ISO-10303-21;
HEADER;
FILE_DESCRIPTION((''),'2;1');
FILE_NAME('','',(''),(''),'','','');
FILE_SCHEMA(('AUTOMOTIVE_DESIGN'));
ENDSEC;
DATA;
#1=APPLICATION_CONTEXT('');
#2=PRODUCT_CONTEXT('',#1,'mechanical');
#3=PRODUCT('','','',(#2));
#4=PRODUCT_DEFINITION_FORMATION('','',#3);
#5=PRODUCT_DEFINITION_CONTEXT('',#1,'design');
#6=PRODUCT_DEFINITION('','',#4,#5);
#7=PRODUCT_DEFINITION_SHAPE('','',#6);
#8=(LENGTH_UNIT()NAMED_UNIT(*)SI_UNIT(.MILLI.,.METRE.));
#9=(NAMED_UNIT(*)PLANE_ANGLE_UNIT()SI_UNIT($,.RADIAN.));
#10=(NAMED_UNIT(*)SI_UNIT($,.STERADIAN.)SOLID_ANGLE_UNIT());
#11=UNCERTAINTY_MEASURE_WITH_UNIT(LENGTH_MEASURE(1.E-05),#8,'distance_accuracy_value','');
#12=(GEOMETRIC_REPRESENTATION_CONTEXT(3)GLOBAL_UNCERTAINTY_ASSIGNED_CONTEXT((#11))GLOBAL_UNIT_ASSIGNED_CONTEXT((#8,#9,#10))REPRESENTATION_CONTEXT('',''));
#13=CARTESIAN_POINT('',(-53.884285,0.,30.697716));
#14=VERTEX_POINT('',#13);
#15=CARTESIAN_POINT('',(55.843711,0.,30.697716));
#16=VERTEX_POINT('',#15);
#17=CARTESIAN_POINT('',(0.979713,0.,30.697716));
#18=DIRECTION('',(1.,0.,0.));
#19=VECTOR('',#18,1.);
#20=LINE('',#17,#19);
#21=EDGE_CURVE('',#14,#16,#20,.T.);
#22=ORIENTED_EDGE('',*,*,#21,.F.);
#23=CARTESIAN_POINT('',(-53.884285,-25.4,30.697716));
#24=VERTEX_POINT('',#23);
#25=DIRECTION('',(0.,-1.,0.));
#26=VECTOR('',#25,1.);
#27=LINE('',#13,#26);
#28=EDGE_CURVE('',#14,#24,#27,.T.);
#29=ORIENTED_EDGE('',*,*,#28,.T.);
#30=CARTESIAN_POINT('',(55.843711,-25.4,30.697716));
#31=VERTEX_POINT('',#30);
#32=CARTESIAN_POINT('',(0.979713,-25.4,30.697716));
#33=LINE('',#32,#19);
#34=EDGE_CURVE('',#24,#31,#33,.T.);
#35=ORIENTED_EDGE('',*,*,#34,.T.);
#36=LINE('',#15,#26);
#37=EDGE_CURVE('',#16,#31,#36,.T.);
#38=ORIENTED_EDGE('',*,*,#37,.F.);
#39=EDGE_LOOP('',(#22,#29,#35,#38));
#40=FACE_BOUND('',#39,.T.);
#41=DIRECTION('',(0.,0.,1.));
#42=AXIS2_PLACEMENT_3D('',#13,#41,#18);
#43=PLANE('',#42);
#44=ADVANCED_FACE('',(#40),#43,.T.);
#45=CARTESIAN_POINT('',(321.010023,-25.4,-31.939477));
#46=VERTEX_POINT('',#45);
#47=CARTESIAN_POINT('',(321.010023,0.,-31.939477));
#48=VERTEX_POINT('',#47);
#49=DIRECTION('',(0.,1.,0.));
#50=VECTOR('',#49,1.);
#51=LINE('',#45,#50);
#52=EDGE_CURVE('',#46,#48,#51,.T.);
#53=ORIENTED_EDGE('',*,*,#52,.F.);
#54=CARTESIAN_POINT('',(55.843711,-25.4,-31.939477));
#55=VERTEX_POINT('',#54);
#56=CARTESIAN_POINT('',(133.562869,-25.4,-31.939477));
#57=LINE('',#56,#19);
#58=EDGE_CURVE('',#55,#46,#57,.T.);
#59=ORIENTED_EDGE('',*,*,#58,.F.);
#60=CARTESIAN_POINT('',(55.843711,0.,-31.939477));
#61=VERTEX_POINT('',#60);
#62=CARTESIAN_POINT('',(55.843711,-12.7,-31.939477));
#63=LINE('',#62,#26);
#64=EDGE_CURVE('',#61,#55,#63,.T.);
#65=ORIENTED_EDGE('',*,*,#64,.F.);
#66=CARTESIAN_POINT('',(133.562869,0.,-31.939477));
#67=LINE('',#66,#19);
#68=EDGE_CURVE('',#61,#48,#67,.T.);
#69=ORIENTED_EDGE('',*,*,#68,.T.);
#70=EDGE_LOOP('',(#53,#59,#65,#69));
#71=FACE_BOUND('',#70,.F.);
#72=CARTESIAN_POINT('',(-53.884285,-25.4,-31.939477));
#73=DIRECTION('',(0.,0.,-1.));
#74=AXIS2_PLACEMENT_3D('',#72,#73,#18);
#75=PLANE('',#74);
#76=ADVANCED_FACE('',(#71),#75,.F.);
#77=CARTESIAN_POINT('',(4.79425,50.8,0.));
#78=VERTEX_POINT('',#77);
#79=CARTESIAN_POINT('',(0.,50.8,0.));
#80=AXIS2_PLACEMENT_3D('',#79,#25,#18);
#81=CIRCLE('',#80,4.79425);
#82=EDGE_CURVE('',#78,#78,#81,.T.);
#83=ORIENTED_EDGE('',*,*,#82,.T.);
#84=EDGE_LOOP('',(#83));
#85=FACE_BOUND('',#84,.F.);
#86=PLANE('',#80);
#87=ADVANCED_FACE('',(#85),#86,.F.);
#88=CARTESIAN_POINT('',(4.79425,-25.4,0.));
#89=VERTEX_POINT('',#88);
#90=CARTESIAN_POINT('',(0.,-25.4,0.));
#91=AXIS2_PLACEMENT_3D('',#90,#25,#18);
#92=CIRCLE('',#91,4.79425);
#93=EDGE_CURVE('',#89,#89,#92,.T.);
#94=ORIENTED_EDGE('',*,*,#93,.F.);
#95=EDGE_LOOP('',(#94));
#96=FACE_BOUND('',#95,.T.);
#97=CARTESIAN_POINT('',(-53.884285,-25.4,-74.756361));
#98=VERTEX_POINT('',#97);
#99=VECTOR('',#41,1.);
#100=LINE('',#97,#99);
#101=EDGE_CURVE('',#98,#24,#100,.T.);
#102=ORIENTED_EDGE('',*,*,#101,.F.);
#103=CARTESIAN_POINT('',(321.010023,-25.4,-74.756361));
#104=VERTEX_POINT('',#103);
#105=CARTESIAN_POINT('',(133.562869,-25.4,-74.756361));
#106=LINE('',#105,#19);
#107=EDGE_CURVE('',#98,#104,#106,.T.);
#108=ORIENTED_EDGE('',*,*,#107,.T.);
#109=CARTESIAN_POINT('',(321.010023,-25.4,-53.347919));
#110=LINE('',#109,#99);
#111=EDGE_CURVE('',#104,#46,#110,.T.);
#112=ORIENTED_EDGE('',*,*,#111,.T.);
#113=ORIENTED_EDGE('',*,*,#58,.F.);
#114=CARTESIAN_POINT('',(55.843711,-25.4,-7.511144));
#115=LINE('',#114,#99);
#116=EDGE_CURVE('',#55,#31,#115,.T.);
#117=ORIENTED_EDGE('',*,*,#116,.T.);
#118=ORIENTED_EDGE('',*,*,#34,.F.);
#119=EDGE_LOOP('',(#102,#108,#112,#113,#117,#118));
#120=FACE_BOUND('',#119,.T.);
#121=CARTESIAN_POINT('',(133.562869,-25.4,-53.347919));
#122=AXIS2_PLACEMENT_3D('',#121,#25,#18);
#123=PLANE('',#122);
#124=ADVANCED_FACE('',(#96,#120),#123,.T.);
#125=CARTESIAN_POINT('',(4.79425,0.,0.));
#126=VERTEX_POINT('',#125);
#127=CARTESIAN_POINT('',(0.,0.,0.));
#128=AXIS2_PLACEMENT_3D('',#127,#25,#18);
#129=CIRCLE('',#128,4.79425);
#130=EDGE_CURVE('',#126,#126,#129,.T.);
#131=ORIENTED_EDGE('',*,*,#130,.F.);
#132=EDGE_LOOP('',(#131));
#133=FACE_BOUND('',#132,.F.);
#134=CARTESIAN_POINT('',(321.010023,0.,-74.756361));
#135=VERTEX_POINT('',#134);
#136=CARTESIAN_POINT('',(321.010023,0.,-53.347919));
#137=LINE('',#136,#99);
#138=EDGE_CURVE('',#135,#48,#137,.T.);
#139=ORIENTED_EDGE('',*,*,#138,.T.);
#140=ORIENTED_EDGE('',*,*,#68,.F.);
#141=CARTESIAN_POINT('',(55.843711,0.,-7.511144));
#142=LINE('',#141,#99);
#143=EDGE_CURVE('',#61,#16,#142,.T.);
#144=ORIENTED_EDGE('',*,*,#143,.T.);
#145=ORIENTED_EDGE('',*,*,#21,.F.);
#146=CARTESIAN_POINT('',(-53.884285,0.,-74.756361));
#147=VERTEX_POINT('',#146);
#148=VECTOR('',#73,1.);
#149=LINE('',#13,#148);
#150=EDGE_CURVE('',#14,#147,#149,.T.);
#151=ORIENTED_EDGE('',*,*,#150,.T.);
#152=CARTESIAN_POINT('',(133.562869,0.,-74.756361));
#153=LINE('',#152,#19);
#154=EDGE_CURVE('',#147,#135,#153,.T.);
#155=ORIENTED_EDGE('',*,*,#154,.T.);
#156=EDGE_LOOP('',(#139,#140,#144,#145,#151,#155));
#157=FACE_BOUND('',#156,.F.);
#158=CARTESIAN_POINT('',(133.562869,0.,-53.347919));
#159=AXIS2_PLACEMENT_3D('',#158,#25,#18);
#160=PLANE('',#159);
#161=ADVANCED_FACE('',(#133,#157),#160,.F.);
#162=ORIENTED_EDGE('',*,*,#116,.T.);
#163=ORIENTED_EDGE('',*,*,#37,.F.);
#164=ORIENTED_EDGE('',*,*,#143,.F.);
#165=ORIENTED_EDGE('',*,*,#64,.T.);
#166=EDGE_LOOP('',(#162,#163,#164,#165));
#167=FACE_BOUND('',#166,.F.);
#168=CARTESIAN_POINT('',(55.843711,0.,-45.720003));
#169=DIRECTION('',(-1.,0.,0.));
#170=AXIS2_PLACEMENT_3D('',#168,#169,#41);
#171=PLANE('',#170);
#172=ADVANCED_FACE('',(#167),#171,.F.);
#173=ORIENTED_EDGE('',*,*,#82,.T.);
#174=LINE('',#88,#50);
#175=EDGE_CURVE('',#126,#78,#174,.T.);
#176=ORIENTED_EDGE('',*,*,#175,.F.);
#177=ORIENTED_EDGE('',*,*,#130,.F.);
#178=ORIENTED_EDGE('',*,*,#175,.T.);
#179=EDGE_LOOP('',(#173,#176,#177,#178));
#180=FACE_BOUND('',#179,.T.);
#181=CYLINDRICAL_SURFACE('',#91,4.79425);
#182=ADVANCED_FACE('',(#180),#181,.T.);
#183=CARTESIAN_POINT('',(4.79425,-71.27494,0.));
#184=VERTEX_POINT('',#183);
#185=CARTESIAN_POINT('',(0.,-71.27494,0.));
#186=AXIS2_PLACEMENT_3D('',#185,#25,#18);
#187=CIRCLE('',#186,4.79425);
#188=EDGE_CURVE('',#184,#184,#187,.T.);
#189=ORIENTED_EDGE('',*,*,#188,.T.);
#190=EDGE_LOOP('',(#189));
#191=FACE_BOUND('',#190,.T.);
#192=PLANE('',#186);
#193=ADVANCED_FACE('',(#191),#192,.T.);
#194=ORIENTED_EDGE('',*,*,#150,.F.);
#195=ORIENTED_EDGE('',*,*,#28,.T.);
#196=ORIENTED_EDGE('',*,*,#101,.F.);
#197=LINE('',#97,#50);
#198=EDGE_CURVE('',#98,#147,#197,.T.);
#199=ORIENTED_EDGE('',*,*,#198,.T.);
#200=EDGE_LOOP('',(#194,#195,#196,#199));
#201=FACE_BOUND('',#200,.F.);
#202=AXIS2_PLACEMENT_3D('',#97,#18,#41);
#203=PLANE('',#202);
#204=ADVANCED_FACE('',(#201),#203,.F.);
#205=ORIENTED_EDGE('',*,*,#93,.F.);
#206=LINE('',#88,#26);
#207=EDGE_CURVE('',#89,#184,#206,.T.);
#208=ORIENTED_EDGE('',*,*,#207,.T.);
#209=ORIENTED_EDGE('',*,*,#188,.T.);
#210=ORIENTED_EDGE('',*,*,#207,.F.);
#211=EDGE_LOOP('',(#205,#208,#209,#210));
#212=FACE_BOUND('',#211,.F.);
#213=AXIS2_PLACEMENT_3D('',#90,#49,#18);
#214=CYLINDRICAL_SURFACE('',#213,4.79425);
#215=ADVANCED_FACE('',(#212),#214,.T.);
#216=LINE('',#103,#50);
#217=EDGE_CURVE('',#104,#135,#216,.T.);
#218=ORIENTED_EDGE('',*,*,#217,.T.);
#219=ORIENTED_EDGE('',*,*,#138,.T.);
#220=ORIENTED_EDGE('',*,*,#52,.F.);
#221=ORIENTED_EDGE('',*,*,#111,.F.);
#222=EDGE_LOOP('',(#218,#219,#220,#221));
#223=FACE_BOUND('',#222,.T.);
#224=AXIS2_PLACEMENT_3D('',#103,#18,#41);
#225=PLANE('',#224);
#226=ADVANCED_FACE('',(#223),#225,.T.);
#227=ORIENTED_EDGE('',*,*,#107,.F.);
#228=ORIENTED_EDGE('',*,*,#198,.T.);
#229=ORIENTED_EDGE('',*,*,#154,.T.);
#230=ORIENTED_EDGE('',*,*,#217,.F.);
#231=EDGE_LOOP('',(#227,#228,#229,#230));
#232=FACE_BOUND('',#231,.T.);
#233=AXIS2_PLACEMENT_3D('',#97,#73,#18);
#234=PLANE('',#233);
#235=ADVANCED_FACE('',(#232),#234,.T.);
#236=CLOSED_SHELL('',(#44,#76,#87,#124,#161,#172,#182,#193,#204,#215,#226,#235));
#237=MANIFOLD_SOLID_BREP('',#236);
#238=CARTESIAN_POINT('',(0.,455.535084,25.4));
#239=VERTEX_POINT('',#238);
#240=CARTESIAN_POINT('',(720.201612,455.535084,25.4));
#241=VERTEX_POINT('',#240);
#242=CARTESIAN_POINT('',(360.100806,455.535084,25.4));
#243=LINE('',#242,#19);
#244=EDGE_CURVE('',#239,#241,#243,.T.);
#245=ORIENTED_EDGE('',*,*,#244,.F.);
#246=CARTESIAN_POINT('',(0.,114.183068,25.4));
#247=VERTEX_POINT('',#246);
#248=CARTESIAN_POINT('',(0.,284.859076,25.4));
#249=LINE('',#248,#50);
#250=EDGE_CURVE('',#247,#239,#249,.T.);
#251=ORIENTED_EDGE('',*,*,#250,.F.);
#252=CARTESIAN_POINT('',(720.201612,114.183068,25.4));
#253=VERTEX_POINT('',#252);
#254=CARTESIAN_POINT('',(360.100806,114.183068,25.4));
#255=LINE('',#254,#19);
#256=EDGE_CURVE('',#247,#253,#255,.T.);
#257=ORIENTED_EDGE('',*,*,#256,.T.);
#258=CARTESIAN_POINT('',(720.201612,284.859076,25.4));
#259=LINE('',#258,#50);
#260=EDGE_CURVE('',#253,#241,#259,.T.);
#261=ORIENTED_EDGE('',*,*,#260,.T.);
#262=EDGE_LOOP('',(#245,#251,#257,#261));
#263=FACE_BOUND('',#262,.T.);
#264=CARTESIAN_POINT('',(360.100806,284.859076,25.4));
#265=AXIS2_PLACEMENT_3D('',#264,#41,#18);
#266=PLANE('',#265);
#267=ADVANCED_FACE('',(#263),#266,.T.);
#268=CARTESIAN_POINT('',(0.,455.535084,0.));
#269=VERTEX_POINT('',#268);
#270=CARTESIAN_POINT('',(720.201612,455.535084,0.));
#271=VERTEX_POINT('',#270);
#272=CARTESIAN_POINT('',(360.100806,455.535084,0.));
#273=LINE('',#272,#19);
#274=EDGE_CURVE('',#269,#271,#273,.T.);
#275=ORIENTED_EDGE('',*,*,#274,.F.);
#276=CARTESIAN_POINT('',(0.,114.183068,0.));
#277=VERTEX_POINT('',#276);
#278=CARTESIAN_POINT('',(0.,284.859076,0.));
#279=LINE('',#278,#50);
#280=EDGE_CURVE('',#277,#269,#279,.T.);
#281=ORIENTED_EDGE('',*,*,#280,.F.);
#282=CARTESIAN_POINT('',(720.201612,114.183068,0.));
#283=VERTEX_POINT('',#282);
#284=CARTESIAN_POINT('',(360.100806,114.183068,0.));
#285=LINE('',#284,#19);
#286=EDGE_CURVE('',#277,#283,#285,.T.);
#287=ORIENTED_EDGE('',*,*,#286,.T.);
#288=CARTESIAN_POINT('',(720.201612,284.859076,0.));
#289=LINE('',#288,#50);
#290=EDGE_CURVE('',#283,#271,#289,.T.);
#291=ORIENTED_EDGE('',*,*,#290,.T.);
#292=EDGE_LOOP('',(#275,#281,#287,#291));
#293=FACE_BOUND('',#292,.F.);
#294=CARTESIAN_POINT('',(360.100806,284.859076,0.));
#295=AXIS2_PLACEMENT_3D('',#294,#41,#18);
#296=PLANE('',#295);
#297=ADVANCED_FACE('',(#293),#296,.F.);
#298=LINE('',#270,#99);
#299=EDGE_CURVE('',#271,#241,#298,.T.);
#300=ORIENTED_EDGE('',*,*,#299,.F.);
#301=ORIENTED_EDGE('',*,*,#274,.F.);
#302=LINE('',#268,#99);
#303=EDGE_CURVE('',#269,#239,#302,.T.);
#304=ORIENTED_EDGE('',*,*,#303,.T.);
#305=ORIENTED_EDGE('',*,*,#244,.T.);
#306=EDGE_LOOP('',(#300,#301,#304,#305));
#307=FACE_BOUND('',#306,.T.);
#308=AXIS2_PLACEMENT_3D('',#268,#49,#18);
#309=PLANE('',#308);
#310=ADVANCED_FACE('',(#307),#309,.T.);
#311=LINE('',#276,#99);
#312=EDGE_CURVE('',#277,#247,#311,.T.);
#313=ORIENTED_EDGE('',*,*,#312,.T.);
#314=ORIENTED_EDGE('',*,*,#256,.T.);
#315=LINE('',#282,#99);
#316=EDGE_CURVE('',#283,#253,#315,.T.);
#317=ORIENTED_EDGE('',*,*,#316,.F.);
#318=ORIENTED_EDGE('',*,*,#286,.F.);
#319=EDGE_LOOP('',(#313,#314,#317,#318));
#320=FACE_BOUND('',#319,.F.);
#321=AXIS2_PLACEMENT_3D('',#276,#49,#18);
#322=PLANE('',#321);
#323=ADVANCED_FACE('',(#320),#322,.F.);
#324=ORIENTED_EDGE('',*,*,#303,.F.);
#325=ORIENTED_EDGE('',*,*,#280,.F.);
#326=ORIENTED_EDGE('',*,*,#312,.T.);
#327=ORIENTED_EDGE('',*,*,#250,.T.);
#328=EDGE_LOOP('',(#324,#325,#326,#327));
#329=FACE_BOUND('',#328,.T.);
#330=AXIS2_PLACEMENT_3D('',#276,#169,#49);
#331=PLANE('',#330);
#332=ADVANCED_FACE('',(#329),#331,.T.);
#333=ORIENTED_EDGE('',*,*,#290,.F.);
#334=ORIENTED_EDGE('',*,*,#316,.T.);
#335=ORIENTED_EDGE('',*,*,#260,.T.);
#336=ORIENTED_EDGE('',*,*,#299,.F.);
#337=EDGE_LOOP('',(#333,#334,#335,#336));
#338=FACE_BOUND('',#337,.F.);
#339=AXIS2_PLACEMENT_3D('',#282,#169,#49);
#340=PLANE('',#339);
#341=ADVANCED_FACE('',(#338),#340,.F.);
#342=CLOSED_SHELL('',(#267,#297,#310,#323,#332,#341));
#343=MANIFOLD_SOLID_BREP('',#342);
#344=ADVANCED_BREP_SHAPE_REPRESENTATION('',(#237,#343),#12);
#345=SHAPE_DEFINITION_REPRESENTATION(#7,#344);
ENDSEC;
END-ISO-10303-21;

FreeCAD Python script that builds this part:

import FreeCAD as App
import Part
import Sketcher
from FreeCAD import Vector
Q = App.Units.Quantity

doc = App.newDocument("Part")
params = doc.addObject("Spreadsheet::Sheet", "Params")
for row, (alias, value) in enumerate([
    ("sketch1_width", "4.3199999 in"),
    ("pad1_length", "1 in"),
    ("pad2_length", "1.8061 in"),
    ("pad2_length2", "3 in"),
    ("pad3_length", "1 in"),
    ("pad4_length", "1 in"),
], start=1):
    params.set(f"A{row}", alias)
    params.set(f"B{row}", "=" + value)
    params.setAlias(f"B{row}", alias)

body = doc.addObject("PartDesign::Body", "Body")

sketch1 = body.newObject("Sketcher::SketchObject", "Sketch")
sketch1.AttachmentSupport = (doc.getObject("XZ_Plane"), [""])
sketch1.MapMode = "FlatFace"
sketch1.addGeometry([
    Part.LineSegment(Vector(-54, 31, 0), Vector(-54, -46, 0)),
    Part.LineSegment(Vector(-54, -46, 0), Vector(56, -46, 0)),
    Part.LineSegment(Vector(56, -46, 0), Vector(56, 31, 0)),
    Part.LineSegment(Vector(56, 31, 0), Vector(-54, 31, 0)),
], False)
sketch1.addConstraint([
    Sketcher.Constraint("Coincident", 0, 2, 1, 1),
    Sketcher.Constraint("Coincident", 1, 2, 2, 1),
    Sketcher.Constraint("Coincident", 2, 2, 3, 1),
    Sketcher.Constraint("Coincident", 3, 2, 0, 1),
    Sketcher.Constraint("Vertical", 0),
    Sketcher.Constraint("Horizontal", 1),
    Sketcher.Constraint("Vertical", 2),
    Sketcher.Constraint("Horizontal", 3),
    Sketcher.Constraint("DistanceX", 1, 1, 1, 2, Q("4.3199999 in")),
    Sketcher.Constraint("DistanceY", 0, 2, -1, 1, Q("1.8000001 in")),
    Sketcher.Constraint("DistanceY", 0, 2, 0, 1, 76.417719),
    Sketcher.Constraint("DistanceX", -1, 1, 1, 2, 55.843711),
])
sketch1.setExpression("Constraints[8]", "Params.sketch1_width")
pad1 = body.newObject("PartDesign::Pad", "Pad")
pad1.Profile = sketch1
pad1.setExpression("Length", "Params.pad1_length")

sketch2 = body.newObject("Sketcher::SketchObject", "Sketch001")
sketch2.AttachmentSupport = (doc.getObject("XZ_Plane"), [""])
sketch2.MapMode = "FlatFace"
sketch2.AttachmentOffset = App.Placement(Vector(0, 0, 1 * 25.4), App.Rotation())
sketch2.addGeometry(Part.Circle(Vector(0, 0, 0), Vector(0, 0, 1), 4.8), False)
sketch2.addConstraint([
    Sketcher.Constraint("Coincident", 0, 3, -1, 1),
    Sketcher.Constraint("Diameter", 0, Q("0.3775 in")),
])
pad2 = body.newObject("PartDesign::Pad", "Pad001")
pad2.Profile = sketch2
pad2.Type = "TwoLengths"
pad2.setExpression("Length", "Params.pad2_length")
pad2.setExpression("Length2", "Params.pad2_length2")

sketch3 = body.newObject("Sketcher::SketchObject", "Sketch002")
sketch3.AttachmentSupport = (doc.getObject("XZ_Plane"), [""])
sketch3.MapMode = "FlatFace"
sketch3.AttachmentOffset = App.Placement(Vector(0, 0, 1 * 25.4), App.Rotation())
sketch3.addGeometry([
    Part.LineSegment(Vector(-54, -32, 0), Vector(-54, -75, 0)),
    Part.LineSegment(Vector(-54, -75, 0), Vector(321, -75, 0)),
    Part.LineSegment(Vector(321, -75, 0), Vector(321, -32, 0)),
    Part.LineSegment(Vector(321, -32, 0), Vector(-54, -32, 0)),
], False)
sketch3.addConstraint([
    Sketcher.Constraint("Coincident", 0, 2, 1, 1),
    Sketcher.Constraint("Coincident", 1, 2, 2, 1),
    Sketcher.Constraint("Coincident", 2, 2, 3, 1),
    Sketcher.Constraint("Coincident", 3, 2, 0, 1),
    Sketcher.Constraint("Vertical", 0),
    Sketcher.Constraint("Horizontal", 1),
    Sketcher.Constraint("Vertical", 2),
    Sketcher.Constraint("Horizontal", 3),
    Sketcher.Constraint("DistanceX", 1, 1, 1, 2, 374.894309),
    Sketcher.Constraint("DistanceY", 0, 2, 0, 1, 42.816885),
    Sketcher.Constraint("DistanceY", 0, 2, -1, 1, 74.756361),
    Sketcher.Constraint("DistanceX", 0, 2, -1, 1, 53.884285),
])
pad3 = body.newObject("PartDesign::Pad", "Pad002")
pad3.Profile = sketch3
pad3.setExpression("Length", "Params.pad3_length")
pad3.Reversed = True
body2 = doc.addObject("PartDesign::Body", "Body001")

sketch4 = body2.newObject("Sketcher::SketchObject", "Sketch003")
sketch4.AttachmentSupport = (doc.getObject("XY_Plane001"), [""])
sketch4.MapMode = "FlatFace"
sketch4.addGeometry([
    Part.LineSegment(Vector(0, 456, 0), Vector(0, 114, 0)),
    Part.LineSegment(Vector(0, 114, 0), Vector(720, 114, 0)),
    Part.LineSegment(Vector(720, 114, 0), Vector(720, 456, 0)),
    Part.LineSegment(Vector(720, 456, 0), Vector(0, 456, 0)),
], False)
sketch4.addConstraint([
    Sketcher.Constraint("Coincident", 0, 2, 1, 1),
    Sketcher.Constraint("Coincident", 1, 2, 2, 1),
    Sketcher.Constraint("Coincident", 2, 2, 3, 1),
    Sketcher.Constraint("Coincident", 3, 2, 0, 1),
    Sketcher.Constraint("Vertical", 0),
    Sketcher.Constraint("Horizontal", 1),
    Sketcher.Constraint("Vertical", 2),
    Sketcher.Constraint("Horizontal", 3),
    Sketcher.Constraint("PointOnObject", 0, 2, -2),
    Sketcher.Constraint("DistanceX", 1, 1, 1, 2, 720.201612),
    Sketcher.Constraint("DistanceY", 0, 2, 0, 1, 341.352016),
    Sketcher.Constraint("DistanceY", -1, 1, 0, 2, 114.183068),
])
pad4 = body2.newObject("PartDesign::Pad", "Pad003")
pad4.Profile = sketch4
pad4.setExpression("Length", "Params.pad4_length")

doc.recompute()
